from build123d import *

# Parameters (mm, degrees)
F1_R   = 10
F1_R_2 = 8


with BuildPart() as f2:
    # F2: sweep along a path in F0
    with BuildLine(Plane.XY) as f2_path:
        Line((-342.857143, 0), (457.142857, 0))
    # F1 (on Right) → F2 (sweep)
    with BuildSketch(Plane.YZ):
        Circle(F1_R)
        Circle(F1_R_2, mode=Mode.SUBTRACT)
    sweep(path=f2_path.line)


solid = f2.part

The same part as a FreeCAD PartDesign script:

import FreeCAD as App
import Part
import Sketcher
Q = App.Units.Quantity

doc = App.newDocument("Part")
body = doc.addObject("PartDesign::Body", "Body")

# Sketch on YZ plane
sketch1 = doc.addObject("Sketcher::SketchObject", "Sketch")
body.addObject(sketch1)
sketch1.AttachmentSupport = (doc.YZ_Plane, [""])
sketch1.MapMode = "FlatFace"
sketch1.addGeometry([
    Part.Circle(App.Vector(0, 0, 0), App.Vector(0, 0, 1), 10),
    Part.Circle(App.Vector(0, 0, 0), App.Vector(0, 0, 1), 8),
], False)
sketch1.addConstraint([
    Sketcher.Constraint("Coincident", 0, 3, -1, 1),
    Sketcher.Constraint("Coincident", 1, 3, -1, 1),
    Sketcher.Constraint("Diameter", 0, Q("20 mm")),
    Sketcher.Constraint("Diameter", 1, Q("16 mm")),
])

# Sketch on XY plane
sketch2 = doc.addObject("Sketcher::SketchObject", "Sketch001")
body.addObject(sketch2)
sketch2.AttachmentSupport = (doc.XY_Plane, [""])
sketch2.MapMode = "FlatFace"
sketch2.addGeometry(Part.LineSegment(App.Vector(-342.857143, 0, 0), App.Vector(457.142857, 0, 0)), False)
sketch2.addConstraint([
    Sketcher.Constraint("Horizontal", 0),
    Sketcher.Constraint("PointOnObject", 0, 1, -1),
    Sketcher.Constraint("DistanceX", 0, 1, 0, 2, Q("800 mm")),
    Sketcher.Constraint("DistanceX", 0, 1, -1, 1, Q("342.857143 mm")),
])
doc.recompute()

additivepipe = doc.addObject("PartDesign::AdditivePipe", "AdditivePipe")
body.addObject(additivepipe)
additivepipe.Profile = sketch1
additivepipe.Spine = (sketch2, ["Edge1"])

doc.recompute()
